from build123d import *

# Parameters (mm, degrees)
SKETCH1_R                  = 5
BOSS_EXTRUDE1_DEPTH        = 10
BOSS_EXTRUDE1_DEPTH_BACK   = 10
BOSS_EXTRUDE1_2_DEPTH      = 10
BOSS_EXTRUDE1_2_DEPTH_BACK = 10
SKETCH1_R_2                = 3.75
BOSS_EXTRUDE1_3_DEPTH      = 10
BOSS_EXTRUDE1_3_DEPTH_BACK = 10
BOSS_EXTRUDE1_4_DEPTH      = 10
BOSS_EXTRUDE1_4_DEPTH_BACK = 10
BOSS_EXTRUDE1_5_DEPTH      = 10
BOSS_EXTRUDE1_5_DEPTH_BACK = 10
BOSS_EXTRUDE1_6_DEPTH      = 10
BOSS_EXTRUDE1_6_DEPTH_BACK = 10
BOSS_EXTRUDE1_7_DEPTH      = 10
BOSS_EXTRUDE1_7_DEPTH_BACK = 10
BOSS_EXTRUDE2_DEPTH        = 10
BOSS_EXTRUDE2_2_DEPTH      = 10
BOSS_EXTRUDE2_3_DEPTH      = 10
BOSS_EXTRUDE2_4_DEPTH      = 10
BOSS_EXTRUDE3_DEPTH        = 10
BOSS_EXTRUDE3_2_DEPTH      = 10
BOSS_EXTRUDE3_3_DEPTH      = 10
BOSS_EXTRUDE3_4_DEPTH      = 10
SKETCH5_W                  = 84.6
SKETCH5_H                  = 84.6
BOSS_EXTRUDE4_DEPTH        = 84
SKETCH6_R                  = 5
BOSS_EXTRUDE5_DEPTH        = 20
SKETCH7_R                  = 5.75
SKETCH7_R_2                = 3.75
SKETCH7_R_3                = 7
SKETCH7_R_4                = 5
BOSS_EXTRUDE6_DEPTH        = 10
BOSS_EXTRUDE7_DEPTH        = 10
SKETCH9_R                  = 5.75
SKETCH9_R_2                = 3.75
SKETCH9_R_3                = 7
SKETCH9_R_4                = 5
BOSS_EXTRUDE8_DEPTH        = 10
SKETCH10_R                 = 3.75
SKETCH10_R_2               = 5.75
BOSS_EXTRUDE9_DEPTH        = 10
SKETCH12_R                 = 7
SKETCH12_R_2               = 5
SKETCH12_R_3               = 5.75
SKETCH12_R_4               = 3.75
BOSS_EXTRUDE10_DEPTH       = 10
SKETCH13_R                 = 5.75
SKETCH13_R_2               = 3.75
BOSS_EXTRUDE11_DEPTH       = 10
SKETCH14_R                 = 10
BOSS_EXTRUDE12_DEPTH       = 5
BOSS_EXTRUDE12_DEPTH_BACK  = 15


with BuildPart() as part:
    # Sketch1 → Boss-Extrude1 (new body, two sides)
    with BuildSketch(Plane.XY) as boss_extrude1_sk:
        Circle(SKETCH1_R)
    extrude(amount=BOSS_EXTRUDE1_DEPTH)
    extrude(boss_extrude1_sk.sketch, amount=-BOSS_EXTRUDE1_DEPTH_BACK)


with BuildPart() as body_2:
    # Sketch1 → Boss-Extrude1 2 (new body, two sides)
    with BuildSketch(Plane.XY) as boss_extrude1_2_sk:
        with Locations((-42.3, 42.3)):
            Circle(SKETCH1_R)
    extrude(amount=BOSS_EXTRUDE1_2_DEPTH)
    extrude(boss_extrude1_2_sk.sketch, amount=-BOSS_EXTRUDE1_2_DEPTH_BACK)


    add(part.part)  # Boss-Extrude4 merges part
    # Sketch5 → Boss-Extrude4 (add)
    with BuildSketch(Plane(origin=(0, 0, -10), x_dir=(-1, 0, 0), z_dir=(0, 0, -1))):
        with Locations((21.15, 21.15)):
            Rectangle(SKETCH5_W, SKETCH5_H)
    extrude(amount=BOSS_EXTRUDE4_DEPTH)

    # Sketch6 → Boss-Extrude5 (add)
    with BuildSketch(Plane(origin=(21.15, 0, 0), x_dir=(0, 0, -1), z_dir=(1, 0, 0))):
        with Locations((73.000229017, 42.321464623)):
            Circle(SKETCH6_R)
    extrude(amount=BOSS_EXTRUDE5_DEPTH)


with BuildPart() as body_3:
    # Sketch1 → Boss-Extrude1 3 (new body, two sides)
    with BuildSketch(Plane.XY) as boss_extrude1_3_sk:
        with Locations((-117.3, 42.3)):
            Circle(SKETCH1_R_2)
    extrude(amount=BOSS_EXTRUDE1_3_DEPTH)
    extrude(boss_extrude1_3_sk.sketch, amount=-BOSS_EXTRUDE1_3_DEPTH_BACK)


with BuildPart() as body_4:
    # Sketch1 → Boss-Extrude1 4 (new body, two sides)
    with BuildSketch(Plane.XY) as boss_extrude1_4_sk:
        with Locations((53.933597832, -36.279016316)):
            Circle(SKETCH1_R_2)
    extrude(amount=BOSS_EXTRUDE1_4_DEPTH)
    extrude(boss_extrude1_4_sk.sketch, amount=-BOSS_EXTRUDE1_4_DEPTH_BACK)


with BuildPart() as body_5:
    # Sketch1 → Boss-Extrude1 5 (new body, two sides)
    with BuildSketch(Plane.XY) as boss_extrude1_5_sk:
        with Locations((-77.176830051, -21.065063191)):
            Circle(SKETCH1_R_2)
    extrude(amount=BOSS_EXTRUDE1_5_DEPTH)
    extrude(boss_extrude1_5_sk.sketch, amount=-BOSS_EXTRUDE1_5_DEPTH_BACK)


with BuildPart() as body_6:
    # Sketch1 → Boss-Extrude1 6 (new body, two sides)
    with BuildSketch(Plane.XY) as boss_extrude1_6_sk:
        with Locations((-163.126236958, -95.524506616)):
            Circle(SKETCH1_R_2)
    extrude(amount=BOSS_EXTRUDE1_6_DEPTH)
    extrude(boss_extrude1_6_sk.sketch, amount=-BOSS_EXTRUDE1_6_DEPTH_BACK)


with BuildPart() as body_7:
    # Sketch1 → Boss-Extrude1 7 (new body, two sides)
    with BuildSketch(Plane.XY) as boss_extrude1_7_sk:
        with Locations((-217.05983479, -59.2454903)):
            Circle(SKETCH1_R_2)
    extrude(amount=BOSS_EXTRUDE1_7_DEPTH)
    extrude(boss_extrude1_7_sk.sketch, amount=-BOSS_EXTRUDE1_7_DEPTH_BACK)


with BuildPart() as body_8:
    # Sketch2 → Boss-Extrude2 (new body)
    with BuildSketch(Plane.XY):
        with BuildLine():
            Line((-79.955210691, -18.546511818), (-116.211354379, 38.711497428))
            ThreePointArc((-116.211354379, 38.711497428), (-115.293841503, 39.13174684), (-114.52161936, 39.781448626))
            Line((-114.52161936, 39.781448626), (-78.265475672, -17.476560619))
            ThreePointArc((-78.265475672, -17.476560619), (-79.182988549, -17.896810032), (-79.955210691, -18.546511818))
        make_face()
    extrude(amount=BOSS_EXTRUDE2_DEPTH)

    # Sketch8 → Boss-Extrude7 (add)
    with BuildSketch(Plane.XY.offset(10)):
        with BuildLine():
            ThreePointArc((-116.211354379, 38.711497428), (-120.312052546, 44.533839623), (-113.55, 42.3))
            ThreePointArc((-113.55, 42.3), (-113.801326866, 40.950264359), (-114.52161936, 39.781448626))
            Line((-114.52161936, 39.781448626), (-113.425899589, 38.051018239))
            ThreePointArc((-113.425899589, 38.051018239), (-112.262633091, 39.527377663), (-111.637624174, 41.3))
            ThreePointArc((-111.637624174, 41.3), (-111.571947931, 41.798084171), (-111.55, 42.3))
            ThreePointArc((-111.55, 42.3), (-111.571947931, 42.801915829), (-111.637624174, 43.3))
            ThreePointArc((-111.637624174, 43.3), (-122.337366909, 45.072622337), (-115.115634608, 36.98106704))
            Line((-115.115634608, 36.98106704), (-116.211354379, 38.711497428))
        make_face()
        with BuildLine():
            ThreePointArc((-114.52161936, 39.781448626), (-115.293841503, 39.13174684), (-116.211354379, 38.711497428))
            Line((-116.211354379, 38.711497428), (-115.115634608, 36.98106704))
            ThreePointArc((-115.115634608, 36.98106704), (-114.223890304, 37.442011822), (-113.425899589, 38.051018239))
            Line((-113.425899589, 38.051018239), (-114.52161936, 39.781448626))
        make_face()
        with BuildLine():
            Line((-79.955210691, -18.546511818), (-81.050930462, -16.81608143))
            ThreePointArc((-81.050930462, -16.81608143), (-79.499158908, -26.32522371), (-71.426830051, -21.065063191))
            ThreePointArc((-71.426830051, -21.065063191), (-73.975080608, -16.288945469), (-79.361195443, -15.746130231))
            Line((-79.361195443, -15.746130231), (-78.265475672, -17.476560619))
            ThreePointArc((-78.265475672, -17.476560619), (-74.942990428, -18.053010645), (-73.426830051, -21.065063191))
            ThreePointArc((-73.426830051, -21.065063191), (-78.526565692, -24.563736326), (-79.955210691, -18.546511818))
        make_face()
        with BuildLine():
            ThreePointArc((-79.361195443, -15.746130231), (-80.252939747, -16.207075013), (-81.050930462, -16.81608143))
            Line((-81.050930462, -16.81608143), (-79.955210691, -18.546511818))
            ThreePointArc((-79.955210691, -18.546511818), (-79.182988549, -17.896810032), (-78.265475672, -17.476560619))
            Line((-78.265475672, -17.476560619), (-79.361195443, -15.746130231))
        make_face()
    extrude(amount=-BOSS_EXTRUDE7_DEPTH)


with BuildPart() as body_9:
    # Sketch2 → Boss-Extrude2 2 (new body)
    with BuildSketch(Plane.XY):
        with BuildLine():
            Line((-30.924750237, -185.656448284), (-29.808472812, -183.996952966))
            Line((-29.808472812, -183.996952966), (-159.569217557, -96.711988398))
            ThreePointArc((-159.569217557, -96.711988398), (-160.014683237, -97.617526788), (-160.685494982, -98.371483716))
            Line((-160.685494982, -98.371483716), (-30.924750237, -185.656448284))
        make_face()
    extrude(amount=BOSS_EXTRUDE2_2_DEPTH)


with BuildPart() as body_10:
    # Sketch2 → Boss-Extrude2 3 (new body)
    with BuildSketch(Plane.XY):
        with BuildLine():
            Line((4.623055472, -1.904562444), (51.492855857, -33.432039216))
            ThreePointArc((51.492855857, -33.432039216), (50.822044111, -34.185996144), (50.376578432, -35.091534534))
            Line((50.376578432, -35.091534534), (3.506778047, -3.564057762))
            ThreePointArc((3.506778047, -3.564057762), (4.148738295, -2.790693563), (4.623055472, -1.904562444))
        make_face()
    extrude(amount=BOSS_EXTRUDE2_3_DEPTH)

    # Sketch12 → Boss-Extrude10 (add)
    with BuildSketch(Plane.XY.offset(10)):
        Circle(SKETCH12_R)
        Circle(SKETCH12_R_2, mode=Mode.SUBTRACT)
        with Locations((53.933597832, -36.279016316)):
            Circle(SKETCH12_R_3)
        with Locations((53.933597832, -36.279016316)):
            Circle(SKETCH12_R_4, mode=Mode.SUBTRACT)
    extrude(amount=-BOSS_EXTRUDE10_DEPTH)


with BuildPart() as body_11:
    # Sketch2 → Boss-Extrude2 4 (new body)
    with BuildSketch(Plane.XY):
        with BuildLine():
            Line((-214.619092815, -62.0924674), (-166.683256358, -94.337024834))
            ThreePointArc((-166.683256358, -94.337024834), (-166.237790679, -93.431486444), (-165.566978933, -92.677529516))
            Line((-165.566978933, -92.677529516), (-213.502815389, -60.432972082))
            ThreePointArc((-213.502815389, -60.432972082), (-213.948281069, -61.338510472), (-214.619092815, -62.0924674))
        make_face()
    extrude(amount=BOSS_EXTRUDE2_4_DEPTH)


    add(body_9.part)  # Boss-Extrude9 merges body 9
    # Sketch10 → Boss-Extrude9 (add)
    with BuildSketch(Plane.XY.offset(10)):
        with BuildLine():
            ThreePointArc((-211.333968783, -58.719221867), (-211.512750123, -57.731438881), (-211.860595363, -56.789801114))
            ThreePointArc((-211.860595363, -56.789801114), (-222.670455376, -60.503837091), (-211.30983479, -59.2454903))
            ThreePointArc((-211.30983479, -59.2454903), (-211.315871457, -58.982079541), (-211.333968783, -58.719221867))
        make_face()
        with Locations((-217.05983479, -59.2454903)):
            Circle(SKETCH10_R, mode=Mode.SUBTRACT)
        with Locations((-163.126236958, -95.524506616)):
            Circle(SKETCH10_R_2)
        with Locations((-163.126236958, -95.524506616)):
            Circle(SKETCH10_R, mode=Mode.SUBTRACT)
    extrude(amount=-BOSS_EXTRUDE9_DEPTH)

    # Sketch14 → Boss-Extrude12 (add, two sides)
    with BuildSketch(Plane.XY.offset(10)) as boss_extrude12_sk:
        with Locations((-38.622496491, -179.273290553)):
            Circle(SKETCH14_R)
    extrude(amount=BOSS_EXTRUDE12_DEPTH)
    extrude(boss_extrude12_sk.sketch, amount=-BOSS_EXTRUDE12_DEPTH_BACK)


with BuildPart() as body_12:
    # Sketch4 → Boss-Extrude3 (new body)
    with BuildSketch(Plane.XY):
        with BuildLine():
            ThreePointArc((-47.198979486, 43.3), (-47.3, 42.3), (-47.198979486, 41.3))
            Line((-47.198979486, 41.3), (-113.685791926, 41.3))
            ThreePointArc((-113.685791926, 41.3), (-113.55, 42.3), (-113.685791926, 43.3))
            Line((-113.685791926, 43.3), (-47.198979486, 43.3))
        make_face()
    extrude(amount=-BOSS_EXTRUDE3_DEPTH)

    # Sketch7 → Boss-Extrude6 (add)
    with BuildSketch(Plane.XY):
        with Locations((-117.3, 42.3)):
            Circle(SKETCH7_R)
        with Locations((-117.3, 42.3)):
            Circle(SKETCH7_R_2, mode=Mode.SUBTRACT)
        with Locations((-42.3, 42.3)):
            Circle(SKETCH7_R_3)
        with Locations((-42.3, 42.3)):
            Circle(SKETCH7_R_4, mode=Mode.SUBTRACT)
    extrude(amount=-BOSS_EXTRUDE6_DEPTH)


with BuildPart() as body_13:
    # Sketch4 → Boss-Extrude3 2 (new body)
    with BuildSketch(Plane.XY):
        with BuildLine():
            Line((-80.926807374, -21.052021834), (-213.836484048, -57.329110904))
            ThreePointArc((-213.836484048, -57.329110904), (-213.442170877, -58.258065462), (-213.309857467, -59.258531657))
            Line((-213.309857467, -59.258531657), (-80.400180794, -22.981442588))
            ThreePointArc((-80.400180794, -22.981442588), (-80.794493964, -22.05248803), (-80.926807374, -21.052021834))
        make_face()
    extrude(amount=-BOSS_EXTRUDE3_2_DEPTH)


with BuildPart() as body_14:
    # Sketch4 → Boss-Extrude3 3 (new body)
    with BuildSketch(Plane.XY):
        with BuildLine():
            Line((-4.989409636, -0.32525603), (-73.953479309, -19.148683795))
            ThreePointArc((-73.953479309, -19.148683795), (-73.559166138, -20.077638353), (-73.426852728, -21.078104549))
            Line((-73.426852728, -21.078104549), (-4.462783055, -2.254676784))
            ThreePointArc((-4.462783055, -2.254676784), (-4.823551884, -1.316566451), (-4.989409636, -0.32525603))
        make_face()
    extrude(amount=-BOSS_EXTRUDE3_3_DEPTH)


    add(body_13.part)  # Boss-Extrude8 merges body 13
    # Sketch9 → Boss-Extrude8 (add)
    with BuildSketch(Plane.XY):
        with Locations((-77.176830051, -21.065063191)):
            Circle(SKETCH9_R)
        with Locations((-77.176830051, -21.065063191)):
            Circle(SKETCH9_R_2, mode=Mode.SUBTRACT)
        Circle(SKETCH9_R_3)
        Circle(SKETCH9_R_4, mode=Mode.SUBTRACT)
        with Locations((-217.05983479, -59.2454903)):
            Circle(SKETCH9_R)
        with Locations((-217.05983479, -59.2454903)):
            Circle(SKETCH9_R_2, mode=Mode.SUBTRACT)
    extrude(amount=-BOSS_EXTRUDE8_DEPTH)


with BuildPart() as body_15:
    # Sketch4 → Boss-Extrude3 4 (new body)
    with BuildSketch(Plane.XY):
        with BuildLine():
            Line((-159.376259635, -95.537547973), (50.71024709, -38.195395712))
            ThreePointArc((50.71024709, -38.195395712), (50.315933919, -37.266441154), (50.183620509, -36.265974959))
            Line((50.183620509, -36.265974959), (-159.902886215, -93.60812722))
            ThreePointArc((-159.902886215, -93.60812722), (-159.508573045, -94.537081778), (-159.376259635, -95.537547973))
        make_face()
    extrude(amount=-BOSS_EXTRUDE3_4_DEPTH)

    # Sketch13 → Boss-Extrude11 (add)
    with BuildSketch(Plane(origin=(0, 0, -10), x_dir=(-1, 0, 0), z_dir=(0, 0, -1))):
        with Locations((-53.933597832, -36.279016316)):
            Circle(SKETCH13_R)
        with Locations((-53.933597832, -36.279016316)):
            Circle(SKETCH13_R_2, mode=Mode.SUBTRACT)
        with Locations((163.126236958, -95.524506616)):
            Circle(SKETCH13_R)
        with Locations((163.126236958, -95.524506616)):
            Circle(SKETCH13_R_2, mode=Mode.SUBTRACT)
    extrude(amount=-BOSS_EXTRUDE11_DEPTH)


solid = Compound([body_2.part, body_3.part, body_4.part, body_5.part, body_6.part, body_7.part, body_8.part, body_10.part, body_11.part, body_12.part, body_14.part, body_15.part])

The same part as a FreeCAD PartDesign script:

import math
import FreeCAD as App
import Part
import Sketcher
from FreeCAD import Vector


def add_polygon(sketch, points):
    """Adds a closed chain of lines whose ends are joined by coincident constraints."""
    first, n = sketch.GeometryCount, len(points)
    for a, b in zip(points, points[1:] + points[:1]):
        sketch.addGeometry(Part.LineSegment(App.Vector(*a, 0), App.Vector(*b, 0)), False)
    for i in range(n):
        sketch.addConstraint(Sketcher.Constraint("Coincident", first + i, 2, first + (i + 1) % n, 1))

doc = App.newDocument("Part")
body = doc.addObject("PartDesign::Body", "Body")

# Sketch on XY plane
sketch1 = body.newObject("Sketcher::SketchObject", "Sketch")
sketch1.AttachmentSupport = (doc.getObject("XY_Plane"), [""])
sketch1.MapMode = "FlatFace"
sketch1.addGeometry(Part.Circle(Vector(0, 0, 0), Vector(0, 0, 1), 5), False)
sketch1.addConstraint([
    Sketcher.Constraint("Coincident", 0, 3, -1, 1),
    Sketcher.Constraint("Diameter", 0, 10.0),
])
pad1 = body.newObject("PartDesign::Pad", "Pad")
pad1.Profile = sketch1
pad1.Type = "TwoLengths"
pad1.Length = 10
pad1.Length2 = 10
body2 = doc.addObject("PartDesign::Body", "Body001")
body2.AllowCompound = True

# Sketch on XY plane
sketch2 = body2.newObject("Sketcher::SketchObject", "Sketch001")
sketch2.AttachmentSupport = (doc.getObject("XY_Plane001"), [""])
sketch2.MapMode = "FlatFace"
sketch2.addGeometry(Part.Circle(Vector(-42, 42, 0), Vector(0, 0, 1), 5), False)
sketch2.addConstraint([
    Sketcher.Constraint("Diameter", 0, 10.0),
    Sketcher.Constraint("DistanceX", 0, 3, -1, 1, 42.3),
    Sketcher.Constraint("DistanceY", -1, 1, 0, 3, 42.3),
])
pad2 = body2.newObject("PartDesign::Pad", "Pad001")
pad2.Profile = sketch2
pad2.Type = "TwoLengths"
pad2.Length = 10
pad2.Length2 = 10
doc.recompute()

boolean = body2.newObject("PartDesign::Boolean", "Boolean")
boolean.Type = "Fuse"
boolean.addObjects([body])

# Sketch on XY plane
sketch3 = body2.newObject("Sketcher::SketchObject", "Sketch002")
sketch3.AttachmentSupport = (doc.getObject("XY_Plane001"), [""])
sketch3.MapMode = "FlatFace"
sketch3.AttachmentOffset = App.Placement(Vector(0, 0, -10), App.Rotation())
add_polygon(sketch3, [(21, 63), (21, -21), (-63, -21), (-63, 63)])  # lines 0-3
sketch3.addConstraint([
    Sketcher.Constraint("Vertical", 0),
    Sketcher.Constraint("Horizontal", 1),
    Sketcher.Constraint("Vertical", 2),
    Sketcher.Constraint("Horizontal", 3),
    Sketcher.Constraint("Equal", 3, 0),
    Sketcher.Constraint("DistanceX", 1, 2, 1, 1, 84.6),
    Sketcher.Constraint("DistanceX", -1, 1, 0, 2, 21.15),
    Sketcher.Constraint("DistanceY", 0, 2, -1, 1, 21.15),
])
pad3 = body2.newObject("PartDesign::Pad", "Pad002")
pad3.Profile = sketch3
pad3.Length = 84
pad3.Reversed = True

# Sketch on YZ plane
sketch4 = body2.newObject("Sketcher::SketchObject", "Sketch003")
sketch4.AttachmentSupport = (doc.getObject("YZ_Plane001"), [""])
sketch4.MapMode = "FlatFace"
sketch4.AttachmentOffset = App.Placement(Vector(0, 0, 21.15), App.Rotation())
sketch4.addGeometry(Part.Circle(Vector(42, -73, 0), Vector(0, 0, 1), 5), False)
sketch4.addConstraint([
    Sketcher.Constraint("Diameter", 0, 10.0),
    Sketcher.Constraint("DistanceY", 0, 3, -1, 1, 73.000229),
    Sketcher.Constraint("DistanceX", -1, 1, 0, 3, 42.321465),
])
pad4 = body2.newObject("PartDesign::Pad", "Pad003")
pad4.Profile = sketch4
pad4.Length = 20
body3 = doc.addObject("PartDesign::Body", "Body002")

# Sketch on XY plane
sketch5 = body3.newObject("Sketcher::SketchObject", "Sketch004")
sketch5.AttachmentSupport = (doc.getObject("XY_Plane002"), [""])
sketch5.MapMode = "FlatFace"
sketch5.addGeometry(Part.Circle(Vector(-117.3, 42.3, 0), Vector(0, 0, 1), 3.8), False)
sketch5.addConstraint([
    Sketcher.Constraint("Diameter", 0, 7.5),
    Sketcher.Constraint("DistanceX", 0, 3, -1, 1, 117.3),
    Sketcher.Constraint("DistanceY", -1, 1, 0, 3, 42.3),
])
pad5 = body3.newObject("PartDesign::Pad", "Pad004")
pad5.Profile = sketch5
pad5.Type = "TwoLengths"
pad5.Length = 10
pad5.Length2 = 10
body4 = doc.addObject("PartDesign::Body", "Body003")

# Sketch on XY plane
sketch6 = body4.newObject("Sketcher::SketchObject", "Sketch005")
sketch6.AttachmentSupport = (doc.getObject("XY_Plane003"), [""])
sketch6.MapMode = "FlatFace"
sketch6.addGeometry(Part.Circle(Vector(53.9, -36.3, 0), Vector(0, 0, 1), 3.8), False)
sketch6.addConstraint([
    Sketcher.Constraint("Diameter", 0, 7.5),
    Sketcher.Constraint("DistanceX", -1, 1, 0, 3, 53.933598),
    Sketcher.Constraint("DistanceY", 0, 3, -1, 1, 36.279016),
])
pad6 = body4.newObject("PartDesign::Pad", "Pad005")
pad6.Profile = sketch6
pad6.Type = "TwoLengths"
pad6.Length = 10
pad6.Length2 = 10
body5 = doc.addObject("PartDesign::Body", "Body004")

# Sketch on XY plane
sketch7 = body5.newObject("Sketcher::SketchObject", "Sketch006")
sketch7.AttachmentSupport = (doc.getObject("XY_Plane004"), [""])
sketch7.MapMode = "FlatFace"
sketch7.addGeometry(Part.Circle(Vector(-77.2, -21.1, 0), Vector(0, 0, 1), 3.8), False)
sketch7.addConstraint([
    Sketcher.Constraint("Diameter", 0, 7.5),
    Sketcher.Constraint("DistanceX", 0, 3, -1, 1, 77.17683),
    Sketcher.Constraint("DistanceY", 0, 3, -1, 1, 21.065063),
])
pad7 = body5.newObject("PartDesign::Pad", "Pad006")
pad7.Profile = sketch7
pad7.Type = "TwoLengths"
pad7.Length = 10
pad7.Length2 = 10
body6 = doc.addObject("PartDesign::Body", "Body005")

# Sketch on XY plane
sketch8 = body6.newObject("Sketcher::SketchObject", "Sketch007")
sketch8.AttachmentSupport = (doc.getObject("XY_Plane005"), [""])
sketch8.MapMode = "FlatFace"
sketch8.addGeometry(Part.Circle(Vector(-163.1, -95.5, 0), Vector(0, 0, 1), 3.8), False)
sketch8.addConstraint([
    Sketcher.Constraint("Diameter", 0, 7.5),
    Sketcher.Constraint("DistanceX", 0, 3, -1, 1, 163.126237),
    Sketcher.Constraint("DistanceY", 0, 3, -1, 1, 95.524507),
])
pad8 = body6.newObject("PartDesign::Pad", "Pad007")
pad8.Profile = sketch8
pad8.Type = "TwoLengths"
pad8.Length = 10
pad8.Length2 = 10
body7 = doc.addObject("PartDesign::Body", "Body006")

# Sketch on XY plane
sketch9 = body7.newObject("Sketcher::SketchObject", "Sketch008")
sketch9.AttachmentSupport = (doc.getObject("XY_Plane006"), [""])
sketch9.MapMode = "FlatFace"
sketch9.addGeometry(Part.Circle(Vector(-217.1, -59.2, 0), Vector(0, 0, 1), 3.8), False)
sketch9.addConstraint([
    Sketcher.Constraint("Diameter", 0, 7.5),
    Sketcher.Constraint("DistanceY", 0, 3, -1, 1, 59.24549),
    Sketcher.Constraint("DistanceX", 0, 3, -1, 1, 217.059835),
])
pad9 = body7.newObject("PartDesign::Pad", "Pad008")
pad9.Profile = sketch9
pad9.Type = "TwoLengths"
pad9.Length = 10
pad9.Length2 = 10
body8 = doc.addObject("PartDesign::Body", "Body007")

# Sketch on XY plane
sketch10 = body8.newObject("Sketcher::SketchObject", "Sketch009")
sketch10.AttachmentSupport = (doc.getObject("XY_Plane007"), [""])
sketch10.MapMode = "FlatFace"
sketch10.addGeometry([
    Part.LineSegment(Vector(-116.2, 38.7, 0), Vector(-80, -18.5, 0)),
    Part.ArcOfCircle(Part.Circle(Vector(-77.2, -21.1, 0), Vector(0, 0, 1), 3.7), math.radians(107), math.radians(138)),
    Part.LineSegment(Vector(-78.3, -17.5, 0), Vector(-114.5, 39.8, 0)),
    Part.ArcOfCircle(Part.Circle(Vector(-117.3, 42.3, 0), Vector(0, 0, 1), 3.8), math.radians(-73), math.radians(-42)),
], False)
sketch10.addConstraint([
    Sketcher.Constraint("Coincident", 0, 2, 1, 2),
    Sketcher.Constraint("Coincident", 1, 1, 2, 1),
    Sketcher.Constraint("Coincident", 2, 2, 3, 2),
    Sketcher.Constraint("Coincident", 3, 1, 0, 1),
    Sketcher.Constraint("Equal", 1, 3),
    Sketcher.Constraint("Parallel", 0, 2),
    Sketcher.Constraint("Equal", 0, 2),
    Sketcher.Constraint("Radius", 1, 3.75),
    Sketcher.Constraint("DistanceX", 3, 3, -1, 1, 117.3),
    Sketcher.Constraint("DistanceY", -1, 1, 3, 3, 42.3),
    Sketcher.Constraint("DistanceX", 1, 3, -1, 1, 77.17683),
    Sketcher.Constraint("DistanceX", 0, 2, -1, 1, 79.955211),
    Sketcher.Constraint("DistanceY", 0, 2, -1, 1, 18.546512),
    Sketcher.Constraint("DistanceY", 1, 1, -1, 1, 17.476561),
])
pad10 = body8.newObject("PartDesign::Pad", "Pad009")
pad10.Profile = sketch10
pad10.Length = 10

# Sketch on XY plane
sketch11 = body8.newObject("Sketcher::SketchObject", "Sketch010")
sketch11.AttachmentSupport = (doc.getObject("XY_Plane007"), [""])
sketch11.MapMode = "FlatFace"
sketch11.AttachmentOffset = App.Placement(Vector(0, 0, 10), App.Rotation())
sketch11.addGeometry([
    Part.ArcOfCircle(Part.Circle(Vector(-117.3, 42.3, 0), Vector(0, 0, 1), 5.7), math.radians(-48), math.radians(-10)),  # 0
    Part.ArcOfCircle(Part.Circle(Vector(-117.3, 42.3, 0), Vector(0, 0, 1), 5.7), math.radians(-10.02), math.radians(0)),  # 1
    Part.ArcOfCircle(Part.Circle(Vector(-117.3, 42.3, 0), Vector(0, 0, 1), 5.7), math.radians(0), math.radians(10.02)),  # 2
    Part.ArcOfCircle(Part.Circle(Vector(-117.3, 42.3, 0), Vector(0, 0, 1), 5.8), math.radians(10), math.radians(292)),  # 3
    Part.ArcOfCircle(Part.Circle(Vector(-117.3, 42.3, 0), Vector(0, 0, 1), 5.7), math.radians(-68), math.radians(-48)),  # 4
    Part.ArcOfCircle(Part.Circle(Vector(-117.3, 42.3, 0), Vector(0, 0, 1), 3.8), math.radians(0), math.radians(287)),  # 5
    Part.ArcOfCircle(Part.Circle(Vector(-117.3, 42.3, 0), Vector(0, 0, 1), 3.8), math.radians(-42), math.radians(0)),  # 6
    Part.ArcOfCircle(Part.Circle(Vector(-117.3, 42.3, 0), Vector(0, 0, 1), 3.8), math.radians(-73), math.radians(-42)),  # 7
    Part.ArcOfCircle(Part.Circle(Vector(-77.2, -21.1, 0), Vector(0, 0, 1), 5.8), math.radians(132), math.radians(360)),  # 8
    Part.ArcOfCircle(Part.Circle(Vector(-77.2, -21.1, 0), Vector(0, 0, 1), 5.8), math.radians(0), math.radians(112)),  # 9
    Part.ArcOfCircle(Part.Circle(Vector(-77.2, -21.1, 0), Vector(0, 0, 1), 5.7), math.radians(112), math.radians(132)),  # 10
    Part.ArcOfCircle(Part.Circle(Vector(-77.2, -21.1, 0), Vector(0, 0, 1), 3.7), math.radians(0), math.radians(107)),  # 11
    Part.ArcOfCircle(Part.Circle(Vector(-77.2, -21.1, 0), Vector(0, 0, 1), 3.8), math.radians(138), math.radians(360)),  # 12
    Part.ArcOfCircle(Part.Circle(Vector(-77.2, -21.1, 0), Vector(0, 0, 1), 3.7), math.radians(107), math.radians(138)),  # 13
], False)
sketch11.addConstraint([
    Sketcher.Constraint("Tangent", 0, 2, 1, 1),
    Sketcher.Constraint("Tangent", 1, 2, 2, 1),
    Sketcher.Constraint("Tangent", 2, 2, 3, 1),
    Sketcher.Constraint("Tangent", 3, 2, 4, 1),
    Sketcher.Constraint("Tangent", 4, 2, 0, 1),
    Sketcher.Constraint("Tangent", 5, 1, 6, 2),
    Sketcher.Constraint("Tangent", 6, 1, 7, 2),
    Sketcher.Constraint("Tangent", 7, 1, 5, 2),
    Sketcher.Constraint("Tangent", 8, 2, 9, 1),
    Sketcher.Constraint("Tangent", 9, 2, 10, 1),
    Sketcher.Constraint("Tangent", 10, 2, 8, 1),
    Sketcher.Constraint("Tangent", 11, 1, 12, 2),
    Sketcher.Constraint("Tangent", 12, 1, 13, 2),
    Sketcher.Constraint("Tangent", 13, 1, 11, 2),
    Sketcher.Constraint("Coincident", 2, 3, 0, 3),
    Sketcher.Constraint("Coincident", 5, 3, 0, 3),
    Sketcher.Constraint("Coincident", 11, 3, 8, 3),
    Sketcher.Constraint("Equal", 4, 8),
    Sketcher.Constraint("Equal", 7, 11),
    Sketcher.Constraint("Horizontal", 7, 3, 1, 2),
    Sketcher.Constraint("Horizontal", 1, 2, 5, 1),
    Sketcher.Constraint("Horizontal", 13, 3, 8, 2),
    Sketcher.Constraint("Horizontal", 8, 2, 11, 1),
    Sketcher.Constraint("Vertical", 0, 2, 2, 2),
    Sketcher.Constraint("Radius", 0, 5.75),
    Sketcher.Constraint("Radius", 5, 3.75),
    Sketcher.Constraint("DistanceY", 0, 2, 1, 3, 1.0),
    Sketcher.Constraint("DistanceX", 0, 3, -1, 1, 117.3),
    Sketcher.Constraint("DistanceY", -1, 1, 0, 3, 42.3),
    Sketcher.Constraint("DistanceX", 4, 2, -1, 1, 113.4259),
    Sketcher.Constraint("DistanceX", 10, 2, 13, 3, 3.8741),
    Sketcher.Constraint("DistanceX", 8, 3, -1, 1, 77.17683),
    Sketcher.Constraint("DistanceX", 6, 1, -1, 1, 114.521619),
    Sketcher.Constraint("DistanceY", 9, 2, -1, 1, 15.74613),
    Sketcher.Constraint("DistanceY", 10, 2, -1, 1, 16.816081),
    Sketcher.Constraint("DistanceX", 12, 1, -1, 1, 79.955211),
    Sketcher.Constraint("DistanceY", 13, 1, -1, 1, 17.476561),
    Sketcher.Constraint("DistanceX", 3, 2, 0, 2, 3.47801),
    Sketcher.Constraint("DistanceY", 7, 1, 6, 1, 1.069951),
])
pad11 = body8.newObject("PartDesign::Pad", "Pad010")
pad11.Profile = sketch11
pad11.Length = 10
pad11.Reversed = True
body9 = doc.addObject("PartDesign::Body", "Body008")

# Sketch on XY plane
sketch12 = body9.newObject("Sketcher::SketchObject", "Sketch011")
sketch12.AttachmentSupport = (doc.getObject("XY_Plane008"), [""])
sketch12.MapMode = "FlatFace"
sketch12.addGeometry([
    Part.LineSegment(Vector(-30.9, -185.7, 0), Vector(-29.8, -184, 0)),
    Part.LineSegment(Vector(-29.8, -184, 0), Vector(-159.6, -96.7, 0)),
    Part.ArcOfCircle(Part.Circle(Vector(-163.1, -95.5, 0), Vector(0, 0, 1), 3.8), math.radians(-49), math.radians(-18)),
    Part.LineSegment(Vector(-160.7, -98.4, 0), Vector(-30.9, -185.7, 0)),
], False)
sketch12.addConstraint([
    Sketcher.Constraint("Coincident", 0, 2, 1, 1),
    Sketcher.Constraint("Coincident", 1, 2, 2, 2),
    Sketcher.Constraint("Coincident", 2, 1, 3, 1),
    Sketcher.Constraint("Coincident", 3, 2, 0, 1),
    Sketcher.Constraint("Perpendicular", 0, 1),
    Sketcher.Constraint("Parallel", 1, 3),
    Sketcher.Constraint("Equal", 1, 3),
    Sketcher.Constraint("Radius", 2, 3.75),
    Sketcher.Constraint("Distance", 0, 2.0),
    Sketcher.Constraint("Distance", 1, 156.385792),
    Sketcher.Constraint("DistanceY", 1, 2, -1, 1, 96.711988),
    Sketcher.Constraint("DistanceX", 3, 2, -1, 1, 30.92475),
    Sketcher.Constraint("DistanceY", 3, 2, -1, 1, 185.656448),
])
pad12 = body9.newObject("PartDesign::Pad", "Pad011")
pad12.Profile = sketch12
pad12.Length = 10
body10 = doc.addObject("PartDesign::Body", "Body009")

# Sketch on XY plane
sketch13 = body10.newObject("Sketcher::SketchObject", "Sketch012")
sketch13.AttachmentSupport = (doc.getObject("XY_Plane009"), [""])
sketch13.MapMode = "FlatFace"
sketch13.addGeometry([
    Part.LineSegment(Vector(51.5, -33.4, 0), Vector(4.6, -1.9, 0)),
    Part.ArcOfCircle(Part.Circle(Vector(0, 0, 0), Vector(0, 0, 1), 5), math.radians(-45), math.radians(-22)),
    Part.LineSegment(Vector(3.5, -3.6, 0), Vector(50.4, -35.1, 0)),
    Part.ArcOfCircle(Part.Circle(Vector(53.9, -36.3, 0), Vector(0, 0, 1), 3.7), math.radians(131), math.radians(162)),
], False)
sketch13.addConstraint([
    Sketcher.Constraint("Coincident", 0, 2, 1, 2),
    Sketcher.Constraint("Coincident", 1, 1, 2, 1),
    Sketcher.Constraint("Coincident", 2, 2, 3, 2),
    Sketcher.Constraint("Coincident", 3, 1, 0, 1),
    Sketcher.Constraint("Coincident", 1, 3, -1, 1),
    Sketcher.Constraint("Parallel", 0, 2),
    Sketcher.Constraint("Equal", 0, 2),
    Sketcher.Constraint("Radius", 1, 5.0),
    Sketcher.Constraint("Radius", 3, 3.75),
    Sketcher.Constraint("DistanceX", 1, 1, 2, 2, 46.8698),
    Sketcher.Constraint("DistanceX", -1, 1, 1, 1, 3.506778),
    Sketcher.Constraint("DistanceY", 3, 1, -1, 1, 33.432039),
    Sketcher.Constraint("DistanceX", 1, 1, 3, 3, 50.42682),
])
pad13 = body10.newObject("PartDesign::Pad", "Pad012")
pad13.Profile = sketch13
pad13.Length = 10

# Sketch on XY plane
sketch14 = body10.newObject("Sketcher::SketchObject", "Sketch013")
sketch14.AttachmentSupport = (doc.getObject("XY_Plane009"), [""])
sketch14.MapMode = "FlatFace"
sketch14.AttachmentOffset = App.Placement(Vector(0, 0, 10), App.Rotation())
sketch14.addGeometry([
    Part.Circle(Vector(0, 0, 0), Vector(0, 0, 1), 7),
    Part.Circle(Vector(0, 0, 0), Vector(0, 0, 1), 5),
    Part.Circle(Vector(53.9, -36.3, 0), Vector(0, 0, 1), 5.8),
    Part.Circle(Vector(53.9, -36.3, 0), Vector(0, 0, 1), 3.8),
], False)
sketch14.addConstraint([
    Sketcher.Constraint("Coincident", 0, 3, -1, 1),
    Sketcher.Constraint("Coincident", 1, 3, -1, 1),
    Sketcher.Constraint("Coincident", 3, 3, 2, 3),
    Sketcher.Constraint("Diameter", 0, 14.0),
    Sketcher.Constraint("Diameter", 1, 10.0),
    Sketcher.Constraint("Diameter", 2, 11.5),
    Sketcher.Constraint("Diameter", 3, 7.5),
    Sketcher.Constraint("DistanceX", -1, 1, 2, 3, 53.933598),
    Sketcher.Constraint("DistanceY", 2, 3, -1, 1, 36.279016),
])
pad14 = body10.newObject("PartDesign::Pad", "Pad013")
pad14.Profile = sketch14
pad14.Length = 10
pad14.Reversed = True
body11 = doc.addObject("PartDesign::Body", "Body010")
body11.AllowCompound = True

# Sketch on XY plane
sketch15 = body11.newObject("Sketcher::SketchObject", "Sketch014")
sketch15.AttachmentSupport = (doc.getObject("XY_Plane010"), [""])
sketch15.MapMode = "FlatFace"
sketch15.addGeometry([
    Part.LineSegment(Vector(-214.6, -62.1, 0), Vector(-166.7, -94.3, 0)),
    Part.ArcOfCircle(Part.Circle(Vector(-163.1, -95.5, 0), Vector(0, 0, 1), 3.7), math.radians(131), math.radians(162)),
    Part.LineSegment(Vector(-165.6, -92.7, 0), Vector(-213.5, -60.4, 0)),
    Part.ArcOfCircle(Part.Circle(Vector(-217.1, -59.2, 0), Vector(0, 0, 1), 3.8), math.radians(-49), math.radians(-18)),
], False)
sketch15.addConstraint([
    Sketcher.Constraint("Coincident", 0, 2, 1, 2),
    Sketcher.Constraint("Coincident", 1, 1, 2, 1),
    Sketcher.Constraint("Coincident", 2, 2, 3, 2),
    Sketcher.Constraint("Coincident", 3, 1, 0, 1),
    Sketcher.Constraint("Equal", 1, 3),
    Sketcher.Constraint("Parallel", 0, 2),
    Sketcher.Constraint("Equal", 0, 2),
    Sketcher.Constraint("Radius", 1, 3.75),
    Sketcher.Constraint("DistanceY", 3, 3, -1, 1, 59.24549),
    Sketcher.Constraint("DistanceX", 1, 1, -1, 1, 165.566979),
    Sketcher.Constraint("DistanceY", 1, 1, -1, 1, 92.67753),
    Sketcher.Constraint("DistanceX", 0, 2, 1, 3, 3.557019),
    Sketcher.Constraint("DistanceX", 3, 3, 0, 2, 50.376578),
    Sketcher.Constraint("DistanceX", 1, 1, 1, 3, 2.440742),
])
pad15 = body11.newObject("PartDesign::Pad", "Pad014")
pad15.Profile = sketch15
pad15.Length = 10
doc.recompute()

boolean2 = body11.newObject("PartDesign::Boolean", "Boolean001")
boolean2.Type = "Fuse"
boolean2.addObjects([body9])

# Sketch on XY plane
sketch16 = body11.newObject("Sketcher::SketchObject", "Sketch015")
sketch16.AttachmentSupport = (doc.getObject("XY_Plane010"), [""])
sketch16.MapMode = "FlatFace"
sketch16.AttachmentOffset = App.Placement(Vector(0, 0, 10), App.Rotation())
sketch16.addGeometry([
    Part.ArcOfCircle(Part.Circle(Vector(-217.1, -59.2, 0), Vector(0, 0, 1), 5.7), math.radians(5), math.radians(25)),  # 0
    Part.ArcOfCircle(Part.Circle(Vector(-217.1, -59.2, 0), Vector(0, 0, 1), 5.8), math.radians(25), math.radians(360)),  # 1
    Part.ArcOfCircle(Part.Circle(Vector(-217.1, -59.2, 0), Vector(0, 0, 1), 5.7), math.radians(0), math.radians(5.25)),  # 2
    Part.Circle(Vector(-217.1, -59.2, 0), Vector(0, 0, 1), 3.8),  # 3
    Part.Circle(Vector(-163.1, -95.5, 0), Vector(0, 0, 1), 5.8),  # 4
    Part.Circle(Vector(-163.1, -95.5, 0), Vector(0, 0, 1), 3.8),  # 5
], False)
sketch16.addConstraint([
    Sketcher.Constraint("Tangent", 0, 2, 1, 1),
    Sketcher.Constraint("Tangent", 1, 2, 2, 1),
    Sketcher.Constraint("Tangent", 2, 2, 0, 1),
    Sketcher.Constraint("Coincident", 3, 3, 0, 3),
    Sketcher.Constraint("Coincident", 5, 3, 4, 3),
    Sketcher.Constraint("Equal", 2, 4),
    Sketcher.Constraint("Equal", 3, 5),
    Sketcher.Constraint("Horizontal", 3, 3, 1, 2),
    Sketcher.Constraint("Diameter", 3, 7.5),
    Sketcher.Constraint("Diameter", 4, 11.5),
    Sketcher.Constraint("DistanceY", 0, 2, -1, 1, 56.789801),
    Sketcher.Constraint("DistanceY", 0, 3, -1, 1, 59.24549),
    Sketcher.Constraint("DistanceX", 2, 2, -1, 1, 211.333969),
    Sketcher.Constraint("DistanceY", 2, 2, -1, 1, 58.719222),
    Sketcher.Constraint("DistanceX", 0, 2, 4, 3, 48.734358),
    Sketcher.Constraint("DistanceY", 4, 3, -1, 1, 95.524507),
])
pad16 = body11.newObject("PartDesign::Pad", "Pad015")
pad16.Profile = sketch16
pad16.Length = 10
pad16.Reversed = True

# Sketch on XY plane
sketch17 = body11.newObject("Sketcher::SketchObject", "Sketch016")
sketch17.AttachmentSupport = (doc.getObject("XY_Plane010"), [""])
sketch17.MapMode = "FlatFace"
sketch17.AttachmentOffset = App.Placement(Vector(0, 0, 10), App.Rotation())
sketch17.addGeometry(Part.Circle(Vector(-39, -179, 0), Vector(0, 0, 1), 10), False)
sketch17.addConstraint([
    Sketcher.Constraint("Diameter", 0, 20.0),
    Sketcher.Constraint("DistanceY", 0, 3, -1, 1, 179.273291),
    Sketcher.Constraint("DistanceX", 0, 3, -1, 1, 38.622496),
])
pad17 = body11.newObject("PartDesign::Pad", "Pad016")
pad17.Profile = sketch17
pad17.Type = "TwoLengths"
pad17.Length = 5
pad17.Length2 = 15
body12 = doc.addObject("PartDesign::Body", "Body011")

# Sketch on XY plane
sketch18 = body12.newObject("Sketcher::SketchObject", "Sketch017")
sketch18.AttachmentSupport = (doc.getObject("XY_Plane011"), [""])
sketch18.MapMode = "FlatFace"
sketch18.addGeometry([
    Part.ArcOfCircle(Part.Circle(Vector(-42.3, 42.3, 0), Vector(0, 0, 1), 5), math.radians(168), math.radians(192)),
    Part.LineSegment(Vector(-47.2, 43.3, 0), Vector(-113.7, 43.3, 0)),
    Part.ArcOfCircle(Part.Circle(Vector(-117.3, 42.3, 0), Vector(0, 0, 1), 3.8), math.radians(-15), math.radians(15)),
    Part.LineSegment(Vector(-113.7, 41.3, 0), Vector(-47.2, 41.3, 0)),
], False)
sketch18.addConstraint([
    Sketcher.Constraint("Coincident", 0, 1, 1, 1),
    Sketcher.Constraint("Coincident", 1, 2, 2, 2),
    Sketcher.Constraint("Coincident", 2, 1, 3, 1),
    Sketcher.Constraint("Coincident", 3, 2, 0, 2),
    Sketcher.Constraint("Horizontal", 1),
    Sketcher.Constraint("Horizontal", 3),
    Sketcher.Constraint("Horizontal", 0, 3, 2, 3),
    Sketcher.Constraint("Vertical", 1, 2, 2, 1),
    Sketcher.Constraint("Radius", 0, 5.0),
    Sketcher.Constraint("Radius", 2, 3.75),
    Sketcher.Constraint("DistanceX", 2, 3, 0, 3, 75.0),
    Sketcher.Constraint("DistanceY", 0, 3, 0, 1, 1.0),
    Sketcher.Constraint("DistanceX", 0, 3, -1, 1, 42.3),
    Sketcher.Constraint("DistanceY", -1, 1, 0, 3, 42.3),
])
pad18 = body12.newObject("PartDesign::Pad", "Pad017")
pad18.Profile = sketch18
pad18.Length = 10
pad18.Reversed = True

# Sketch on XY plane
sketch19 = body12.newObject("Sketcher::SketchObject", "Sketch018")
sketch19.AttachmentSupport = (doc.getObject("XY_Plane011"), [""])
sketch19.MapMode = "FlatFace"
sketch19.addGeometry([
    Part.Circle(Vector(-117.3, 42.3, 0), Vector(0, 0, 1), 5.8),
    Part.Circle(Vector(-117.3, 42.3, 0), Vector(0, 0, 1), 3.8),
    Part.Circle(Vector(-42.3, 42.3, 0), Vector(0, 0, 1), 7),
    Part.Circle(Vector(-42.3, 42.3, 0), Vector(0, 0, 1), 5),
], False)
sketch19.addConstraint([
    Sketcher.Constraint("Coincident", 1, 3, 0, 3),
    Sketcher.Constraint("Coincident", 3, 3, 2, 3),
    Sketcher.Constraint("Horizontal", 1, 3, 2, 3),
    Sketcher.Constraint("Diameter", 2, 14.0),
    Sketcher.Constraint("Diameter", 3, 10.0),
    Sketcher.Constraint("Diameter", 0, 11.5),
    Sketcher.Constraint("Diameter", 1, 7.5),
    Sketcher.Constraint("DistanceX", 0, 3, 2, 3, 75.0),
    Sketcher.Constraint("DistanceX", 0, 3, -1, 1, 117.3),
    Sketcher.Constraint("DistanceY", -1, 1, 0, 3, 42.3),
])
pad19 = body12.newObject("PartDesign::Pad", "Pad018")
pad19.Profile = sketch19
pad19.Length = 10
pad19.Reversed = True
body13 = doc.addObject("PartDesign::Body", "Body012")

# Sketch on XY plane
sketch20 = body13.newObject("Sketcher::SketchObject", "Sketch019")
sketch20.AttachmentSupport = (doc.getObject("XY_Plane012"), [""])
sketch20.MapMode = "FlatFace"
sketch20.addGeometry([
    Part.LineSegment(Vector(-80.9, -21.1, 0), Vector(-213.8, -57.3, 0)),
    Part.ArcOfCircle(Part.Circle(Vector(-217.1, -59.2, 0), Vector(0, 0, 1), 3.7), math.radians(0), math.radians(31)),
    Part.LineSegment(Vector(-213.3, -59.3, 0), Vector(-80.4, -23, 0)),
    Part.ArcOfCircle(Part.Circle(Vector(-77.2, -21.1, 0), Vector(0, 0, 1), 3.8), math.radians(180), math.radians(211)),
], False)
sketch20.addConstraint([
    Sketcher.Constraint("Coincident", 0, 2, 1, 2),
    Sketcher.Constraint("Coincident", 1, 1, 2, 1),
    Sketcher.Constraint("Coincident", 2, 2, 3, 2),
    Sketcher.Constraint("Coincident", 3, 1, 0, 1),
    Sketcher.Constraint("Equal", 1, 3),
    Sketcher.Constraint("Parallel", 0, 2),
    Sketcher.Constraint("Equal", 0, 2),
    Sketcher.Constraint("Radius", 1, 3.75),
    Sketcher.Constraint("DistanceY", 1, 3, -1, 1, 59.24549),
    Sketcher.Constraint("DistanceX", 3, 3, -1, 1, 77.17683),
    Sketcher.Constraint("DistanceY", 0, 2, -1, 1, 57.329111),
    Sketcher.Constraint("DistanceY", 1, 1, -1, 1, 59.258532),
    Sketcher.Constraint("DistanceY", 3, 1, -1, 1, 21.052022),
    Sketcher.Constraint("DistanceX", 1, 1, 3, 1, 132.38305),
])
pad20 = body13.newObject("PartDesign::Pad", "Pad019")
pad20.Profile = sketch20
pad20.Length = 10
pad20.Reversed = True
body14 = doc.addObject("PartDesign::Body", "Body013")
body14.AllowCompound = True

# Sketch on XY plane
sketch21 = body14.newObject("Sketcher::SketchObject", "Sketch020")
sketch21.AttachmentSupport = (doc.getObject("XY_Plane013"), [""])
sketch21.MapMode = "FlatFace"
sketch21.addGeometry([
    Part.LineSegment(Vector(-5, -0.3, 0), Vector(-74, -19.1, 0)),
    Part.ArcOfCircle(Part.Circle(Vector(-77.2, -21.1, 0), Vector(0, 0, 1), 3.7), math.radians(0), math.radians(31)),
    Part.LineSegment(Vector(-73.4, -21.1, 0), Vector(-4.5, -2.3, 0)),
    Part.ArcOfCircle(Part.Circle(Vector(0, 0, 0), Vector(0, 0, 1), 5), math.radians(-176), math.radians(-153)),
], False)
sketch21.addConstraint([
    Sketcher.Constraint("Coincident", 0, 2, 1, 2),
    Sketcher.Constraint("Coincident", 1, 1, 2, 1),
    Sketcher.Constraint("Coincident", 2, 2, 3, 2),
    Sketcher.Constraint("Coincident", 3, 1, 0, 1),
    Sketcher.Constraint("Coincident", 3, 3, -1, 1),
    Sketcher.Constraint("Parallel", 0, 2),
    Sketcher.Constraint("Equal", 0, 2),
    Sketcher.Constraint("Radius", 3, 5.0),
    Sketcher.Constraint("Radius", 1, 3.75),
    Sketcher.Constraint("DistanceX", 1, 3, -1, 1, 77.17683),
    Sketcher.Constraint("DistanceX", 0, 2, -1, 1, 73.953479),
    Sketcher.Constraint("DistanceX", 3, 1, -1, 1, 4.98941),
    Sketcher.Constraint("DistanceY", 1, 1, 3, 1, 20.752849),
])
pad21 = body14.newObject("PartDesign::Pad", "Pad020")
pad21.Profile = sketch21
pad21.Length = 10
pad21.Reversed = True
doc.recompute()

boolean3 = body14.newObject("PartDesign::Boolean", "Boolean002")
boolean3.Type = "Fuse"
boolean3.addObjects([body13])

# Sketch on XY plane
sketch22 = body14.newObject("Sketcher::SketchObject", "Sketch021")
sketch22.AttachmentSupport = (doc.getObject("XY_Plane013"), [""])
sketch22.MapMode = "FlatFace"
sketch22.addGeometry([
    Part.Circle(Vector(-77.2, -21.1, 0), Vector(0, 0, 1), 5.8),  # 0
    Part.Circle(Vector(-77.2, -21.1, 0), Vector(0, 0, 1), 3.8),  # 1
    Part.Circle(Vector(0, 0, 0), Vector(0, 0, 1), 7),  # 2
    Part.Circle(Vector(0, 0, 0), Vector(0, 0, 1), 5),  # 3
    Part.Circle(Vector(-217.1, -59.2, 0), Vector(0, 0, 1), 5.8),  # 4
    Part.Circle(Vector(-217.1, -59.2, 0), Vector(0, 0, 1), 3.8),  # 5
], False)
sketch22.addConstraint([
    Sketcher.Constraint("Coincident", 2, 3, -1, 1),
    Sketcher.Constraint("Coincident", 3, 3, -1, 1),
    Sketcher.Constraint("Coincident", 1, 3, 0, 3),
    Sketcher.Constraint("Coincident", 5, 3, 4, 3),
    Sketcher.Constraint("Equal", 0, 4),
    Sketcher.Constraint("Equal", 1, 5),
    Sketcher.Constraint("Diameter", 2, 14.0),
    Sketcher.Constraint("Diameter", 3, 10.0),
    Sketcher.Constraint("Diameter", 0, 11.5),
    Sketcher.Constraint("Diameter", 1, 7.5),
    Sketcher.Constraint("DistanceX", 0, 3, -1, 1, 77.17683),
    Sketcher.Constraint("DistanceY", 4, 3, -1, 1, 59.24549),
    Sketcher.Constraint("DistanceY", 0, 3, -1, 1, 21.065063),
    Sketcher.Constraint("DistanceX", 4, 3, -1, 1, 217.059835),
])
pad22 = body14.newObject("PartDesign::Pad", "Pad021")
pad22.Profile = sketch22
pad22.Length = 10
pad22.Reversed = True
body15 = doc.addObject("PartDesign::Body", "Body014")

# Sketch on XY plane
sketch23 = body15.newObject("Sketcher::SketchObject", "Sketch022")
sketch23.AttachmentSupport = (doc.getObject("XY_Plane014"), [""])
sketch23.MapMode = "FlatFace"
sketch23.addGeometry([
    Part.LineSegment(Vector(-159.4, -95.5, 0), Vector(50.7, -38.2, 0)),
    Part.ArcOfCircle(Part.Circle(Vector(53.9, -36.3, 0), Vector(0, 0, 1), 3.7), math.radians(180), math.radians(211)),
    Part.LineSegment(Vector(50.2, -36.3, 0), Vector(-159.9, -93.6, 0)),
    Part.ArcOfCircle(Part.Circle(Vector(-163.1, -95.5, 0), Vector(0, 0, 1), 3.8), math.radians(0), math.radians(31)),
], False)
sketch23.addConstraint([
    Sketcher.Constraint("Coincident", 0, 2, 1, 2),
    Sketcher.Constraint("Coincident", 1, 1, 2, 1),
    Sketcher.Constraint("Coincident", 2, 2, 3, 2),
    Sketcher.Constraint("Coincident", 3, 1, 0, 1),
    Sketcher.Constraint("Equal", 1, 3),
    Sketcher.Constraint("Parallel", 0, 2),
    Sketcher.Constraint("Equal", 0, 2),
    Sketcher.Constraint("Radius", 1, 3.75),
    Sketcher.Constraint("DistanceX", -1, 1, 1, 1, 50.183621),
    Sketcher.Constraint("DistanceX", 3, 1, -1, 1, 159.37626),
    Sketcher.Constraint("DistanceY", 3, 3, 1, 3, 59.24549),
    Sketcher.Constraint("DistanceX", 0, 2, 1, 3, 3.223351),
    Sketcher.Constraint("DistanceY", 0, 2, 1, 1, 1.929421),
    Sketcher.Constraint("DistanceY", 1, 3, -1, 1, 36.279016),
])
pad23 = body15.newObject("PartDesign::Pad", "Pad022")
pad23.Profile = sketch23
pad23.Length = 10
pad23.Reversed = True

# Sketch on XY plane
sketch24 = body15.newObject("Sketcher::SketchObject", "Sketch023")
sketch24.AttachmentSupport = (doc.getObject("XY_Plane014"), [""])
sketch24.MapMode = "FlatFace"
sketch24.AttachmentOffset = App.Placement(Vector(0, 0, -10), App.Rotation())
sketch24.addGeometry([
    Part.Circle(Vector(53.9, -36.3, 0), Vector(0, 0, 1), 5.8),
    Part.Circle(Vector(53.9, -36.3, 0), Vector(0, 0, 1), 3.8),
    Part.Circle(Vector(-163.1, -95.5, 0), Vector(0, 0, 1), 5.8),
    Part.Circle(Vector(-163.1, -95.5, 0), Vector(0, 0, 1), 3.8),
], False)
sketch24.addConstraint([
    Sketcher.Constraint("Coincident", 1, 3, 0, 3),
    Sketcher.Constraint("Coincident", 3, 3, 2, 3),
    Sketcher.Constraint("Equal", 0, 2),
    Sketcher.Constraint("Equal", 1, 3),
    Sketcher.Constraint("Diameter", 0, 11.5),
    Sketcher.Constraint("Diameter", 1, 7.5),
    Sketcher.Constraint("DistanceY", 2, 3, 0, 3, 59.24549),
    Sketcher.Constraint("DistanceX", -1, 1, 0, 3, 53.933598),
    Sketcher.Constraint("DistanceY", 0, 3, -1, 1, 36.279016),
    Sketcher.Constraint("DistanceX", 2, 3, -1, 1, 163.126237),
])
pad24 = body15.newObject("PartDesign::Pad", "Pad023")
pad24.Profile = sketch24
pad24.Length = 10

doc.recompute()
